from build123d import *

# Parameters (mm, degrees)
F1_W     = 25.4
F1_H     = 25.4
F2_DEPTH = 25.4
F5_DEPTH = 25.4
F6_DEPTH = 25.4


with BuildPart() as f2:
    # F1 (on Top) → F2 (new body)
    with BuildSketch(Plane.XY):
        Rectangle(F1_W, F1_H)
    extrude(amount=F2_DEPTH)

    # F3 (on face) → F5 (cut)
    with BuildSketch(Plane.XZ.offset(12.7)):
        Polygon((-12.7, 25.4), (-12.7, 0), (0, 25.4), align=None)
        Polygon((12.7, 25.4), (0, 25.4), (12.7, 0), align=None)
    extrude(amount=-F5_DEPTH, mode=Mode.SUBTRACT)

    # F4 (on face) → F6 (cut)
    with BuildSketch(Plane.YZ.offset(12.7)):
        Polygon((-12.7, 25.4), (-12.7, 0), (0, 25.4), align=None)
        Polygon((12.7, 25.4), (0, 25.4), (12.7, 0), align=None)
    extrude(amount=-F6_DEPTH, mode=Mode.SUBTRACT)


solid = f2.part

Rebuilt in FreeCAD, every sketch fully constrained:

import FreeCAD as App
import Part
import Sketcher
from FreeCAD import Vector
Q = App.Units.Quantity


def add_polygon(sketch, points):
    """Adds a closed chain of lines whose ends are joined by coincident constraints."""
    first, n = sketch.GeometryCount, len(points)
    for a, b in zip(points, points[1:] + points[:1]):
        sketch.addGeometry(Part.LineSegment(App.Vector(*a, 0), App.Vector(*b, 0)), False)
    for i in range(n):
        sketch.addConstraint(Sketcher.Constraint("Coincident", first + i, 2, first + (i + 1) % n, 1))

doc = App.newDocument("Part")
body = doc.addObject("PartDesign::Body", "Body")

# Sketch on XY plane
sketch1 = body.newObject("Sketcher::SketchObject", "Sketch")
sketch1.AttachmentSupport = (doc.getObject("XY_Plane"), [""])
sketch1.MapMode = "FlatFace"
add_polygon(sketch1, [(-12.7, 12.7), (-12.7, -12.7), (12.7, -12.7), (12.7, 12.7)])  # lines 0-3
sketch1.addConstraint([
    Sketcher.Constraint("Vertical", 0),
    Sketcher.Constraint("Horizontal", 1),
    Sketcher.Constraint("Vertical", 2),
    Sketcher.Constraint("Horizontal", 3),
    Sketcher.Constraint("Symmetric", 0, 2, 2, 2, -1, 1),
    Sketcher.Constraint("Equal", 3, 0),
    Sketcher.Constraint("DistanceX", 1, 1, 1, 2, Q("1 in")),
])
pad1 = body.newObject("PartDesign::Pad", "Pad")
pad1.Profile = sketch1
pad1.Length = Q("1 in")

# Sketch on XZ plane
sketch2 = body.newObject("Sketcher::SketchObject", "Sketch001")
sketch2.AttachmentSupport = (doc.getObject("XZ_Plane"), [""])
sketch2.MapMode = "FlatFace"
sketch2.AttachmentOffset = App.Placement(Vector(0, 0, 0.5 * 25.4), App.Rotation())
add_polygon(sketch2, [(-12.7, 25.4), (-12.7, 0), (0, 25.4)])  # lines 0-2
add_polygon(sketch2, [(12.7, 25.4), (0, 25.4), (12.7, 0)])  # lines 3-5
sketch2.addConstraint([
    Sketcher.Constraint("Vertical", 0),
    Sketcher.Constraint("Horizontal", 2),
    Sketcher.Constraint("Horizontal", 3),
    Sketcher.Constraint("Vertical", 5),
    Sketcher.Constraint("Coincident", 3, 2, 1, 2),
    Sketcher.Constraint("Symmetric", 0, 2, 4, 2, -1, 1),
    Sketcher.Constraint("PointOnObject", 0, 2, -1),
    Sketcher.Constraint("PointOnObject", 1, 2, -2),
    Sketcher.Constraint("DistanceY", 0, 2, 0, 1, Q("1 in")),
    Sketcher.Constraint("DistanceX", 2, 2, 2, 1, Q("0.5 in")),
])
pocket1 = body.newObject("PartDesign::Pocket", "Pocket")
pocket1.Profile = sketch2
pocket1.Length = Q("1 in")

# Sketch on YZ plane
sketch3 = body.newObject("Sketcher::SketchObject", "Sketch002")
sketch3.AttachmentSupport = (doc.getObject("YZ_Plane"), [""])
sketch3.MapMode = "FlatFace"
sketch3.AttachmentOffset = App.Placement(Vector(0, 0, 0.5 * 25.4), App.Rotation())
add_polygon(sketch3, [(-12.7, 25.4), (-12.7, 0), (0, 25.4)])  # lines 0-2
add_polygon(sketch3, [(12.7, 25.4), (0, 25.4), (12.7, 0)])  # lines 3-5
sketch3.addConstraint([
    Sketcher.Constraint("Vertical", 0),
    Sketcher.Constraint("Horizontal", 2),
    Sketcher.Constraint("Horizontal", 3),
    Sketcher.Constraint("Vertical", 5),
    Sketcher.Constraint("Coincident", 3, 2, 1, 2),
    Sketcher.Constraint("Symmetric", 0, 2, 4, 2, -1, 1),
    Sketcher.Constraint("PointOnObject", 0, 2, -1),
    Sketcher.Constraint("PointOnObject", 1, 2, -2),
    Sketcher.Constraint("DistanceY", 0, 2, 0, 1, Q("1 in")),
    Sketcher.Constraint("DistanceX", 2, 2, 2, 1, Q("0.5 in")),
])
pocket2 = body.newObject("PartDesign::Pocket", "Pocket001")
pocket2.Profile = sketch3
pocket2.Length = Q("1 in")

doc.recompute()
